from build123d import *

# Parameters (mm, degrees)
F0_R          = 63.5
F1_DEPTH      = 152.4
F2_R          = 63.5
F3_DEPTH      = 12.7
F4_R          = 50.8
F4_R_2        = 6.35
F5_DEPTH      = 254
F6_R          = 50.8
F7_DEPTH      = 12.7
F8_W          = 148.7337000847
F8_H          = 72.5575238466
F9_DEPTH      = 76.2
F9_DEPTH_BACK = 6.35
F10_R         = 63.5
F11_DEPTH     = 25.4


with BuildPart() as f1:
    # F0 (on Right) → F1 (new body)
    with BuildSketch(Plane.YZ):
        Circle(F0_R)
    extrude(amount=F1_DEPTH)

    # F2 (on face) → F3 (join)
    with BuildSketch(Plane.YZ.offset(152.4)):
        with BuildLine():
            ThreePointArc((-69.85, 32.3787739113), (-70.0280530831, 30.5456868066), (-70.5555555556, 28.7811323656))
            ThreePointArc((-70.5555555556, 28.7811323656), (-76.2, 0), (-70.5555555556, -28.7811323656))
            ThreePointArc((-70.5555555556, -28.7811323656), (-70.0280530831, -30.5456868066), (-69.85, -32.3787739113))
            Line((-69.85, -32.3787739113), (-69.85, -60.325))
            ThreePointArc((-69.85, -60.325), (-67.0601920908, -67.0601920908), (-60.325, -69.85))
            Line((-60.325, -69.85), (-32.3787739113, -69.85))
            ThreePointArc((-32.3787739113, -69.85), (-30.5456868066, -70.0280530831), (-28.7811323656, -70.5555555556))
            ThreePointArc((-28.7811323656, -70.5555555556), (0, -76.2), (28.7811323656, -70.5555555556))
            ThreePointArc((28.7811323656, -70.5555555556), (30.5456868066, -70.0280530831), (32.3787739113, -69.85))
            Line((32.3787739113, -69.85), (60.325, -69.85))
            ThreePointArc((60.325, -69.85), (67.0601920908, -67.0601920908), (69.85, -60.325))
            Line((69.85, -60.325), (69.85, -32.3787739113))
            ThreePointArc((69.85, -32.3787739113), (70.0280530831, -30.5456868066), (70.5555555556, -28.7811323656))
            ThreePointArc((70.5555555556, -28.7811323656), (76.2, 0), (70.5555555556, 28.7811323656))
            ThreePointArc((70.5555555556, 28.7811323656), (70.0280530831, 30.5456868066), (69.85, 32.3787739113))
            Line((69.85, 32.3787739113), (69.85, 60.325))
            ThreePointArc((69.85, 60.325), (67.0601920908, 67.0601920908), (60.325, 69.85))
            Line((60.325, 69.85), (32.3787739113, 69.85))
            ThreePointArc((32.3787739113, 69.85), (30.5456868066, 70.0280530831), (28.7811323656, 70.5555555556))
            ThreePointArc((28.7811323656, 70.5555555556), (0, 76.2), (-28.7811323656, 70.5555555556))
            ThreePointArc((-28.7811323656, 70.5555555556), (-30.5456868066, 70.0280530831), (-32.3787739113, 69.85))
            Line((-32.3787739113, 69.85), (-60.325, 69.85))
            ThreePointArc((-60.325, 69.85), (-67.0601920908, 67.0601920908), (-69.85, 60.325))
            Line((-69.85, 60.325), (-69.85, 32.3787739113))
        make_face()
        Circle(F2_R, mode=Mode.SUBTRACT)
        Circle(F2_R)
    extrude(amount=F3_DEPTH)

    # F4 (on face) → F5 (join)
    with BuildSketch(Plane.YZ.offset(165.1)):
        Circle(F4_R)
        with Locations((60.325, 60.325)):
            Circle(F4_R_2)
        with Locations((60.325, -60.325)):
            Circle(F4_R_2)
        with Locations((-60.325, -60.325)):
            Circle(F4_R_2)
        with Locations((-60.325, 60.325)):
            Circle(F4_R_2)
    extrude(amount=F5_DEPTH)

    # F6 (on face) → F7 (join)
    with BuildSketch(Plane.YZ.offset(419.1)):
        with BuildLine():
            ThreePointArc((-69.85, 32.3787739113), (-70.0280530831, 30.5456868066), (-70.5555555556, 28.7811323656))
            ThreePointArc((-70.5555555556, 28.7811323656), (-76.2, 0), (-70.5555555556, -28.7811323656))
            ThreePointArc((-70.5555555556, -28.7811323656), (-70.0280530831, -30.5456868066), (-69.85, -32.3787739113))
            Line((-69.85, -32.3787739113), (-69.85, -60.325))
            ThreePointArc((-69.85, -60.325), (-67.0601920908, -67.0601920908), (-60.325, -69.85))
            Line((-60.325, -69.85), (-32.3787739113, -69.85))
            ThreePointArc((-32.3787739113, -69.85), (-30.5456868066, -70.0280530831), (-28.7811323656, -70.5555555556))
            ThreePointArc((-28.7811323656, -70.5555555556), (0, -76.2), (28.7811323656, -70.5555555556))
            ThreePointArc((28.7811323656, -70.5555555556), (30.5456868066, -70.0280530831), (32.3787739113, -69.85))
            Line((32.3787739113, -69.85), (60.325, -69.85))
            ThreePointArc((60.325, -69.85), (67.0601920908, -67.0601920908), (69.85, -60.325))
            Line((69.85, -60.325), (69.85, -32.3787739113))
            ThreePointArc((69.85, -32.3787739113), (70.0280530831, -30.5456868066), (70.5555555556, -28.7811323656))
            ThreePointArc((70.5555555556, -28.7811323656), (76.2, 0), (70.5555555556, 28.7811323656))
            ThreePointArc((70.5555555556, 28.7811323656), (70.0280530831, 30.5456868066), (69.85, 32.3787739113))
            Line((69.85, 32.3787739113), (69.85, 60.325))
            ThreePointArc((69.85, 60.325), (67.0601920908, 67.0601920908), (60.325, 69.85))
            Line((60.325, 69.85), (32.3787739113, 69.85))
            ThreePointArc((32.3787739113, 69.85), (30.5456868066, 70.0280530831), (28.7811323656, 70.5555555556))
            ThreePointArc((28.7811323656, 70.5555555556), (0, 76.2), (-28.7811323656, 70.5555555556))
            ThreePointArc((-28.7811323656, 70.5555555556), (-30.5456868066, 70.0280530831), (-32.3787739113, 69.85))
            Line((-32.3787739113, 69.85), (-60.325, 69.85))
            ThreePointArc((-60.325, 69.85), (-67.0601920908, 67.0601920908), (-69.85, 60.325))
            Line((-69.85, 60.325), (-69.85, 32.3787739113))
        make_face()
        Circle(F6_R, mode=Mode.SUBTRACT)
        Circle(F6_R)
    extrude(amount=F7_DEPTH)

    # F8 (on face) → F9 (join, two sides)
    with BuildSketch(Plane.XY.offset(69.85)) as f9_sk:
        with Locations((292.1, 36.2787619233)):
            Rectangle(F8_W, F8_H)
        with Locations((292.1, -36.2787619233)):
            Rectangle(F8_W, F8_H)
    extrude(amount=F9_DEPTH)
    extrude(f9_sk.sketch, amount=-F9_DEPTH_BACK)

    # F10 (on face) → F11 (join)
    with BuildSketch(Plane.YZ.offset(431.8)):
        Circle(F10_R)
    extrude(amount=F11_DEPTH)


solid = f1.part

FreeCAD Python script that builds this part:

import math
import FreeCAD as App
import Part
import Sketcher
from FreeCAD import Vector
Q = App.Units.Quantity

doc = App.newDocument("Part")
body = doc.addObject("PartDesign::Body", "Body")

sketch1 = body.newObject("Sketcher::SketchObject", "Sketch")
sketch1.AttachmentSupport = (doc.getObject("YZ_Plane"), [""])
sketch1.MapMode = "FlatFace"
sketch1.addGeometry(Part.Circle(Vector(0, 0, 0), Vector(0, 0, 1), 64), False)
sketch1.addConstraint([
    Sketcher.Constraint("Coincident", 0, 3, -1, 1),
    Sketcher.Constraint("Diameter", 0, Q("5 in")),
])
pad1 = body.newObject("PartDesign::Pad", "Pad")
pad1.Profile = sketch1
pad1.Length = Q("6 in")

sketch2 = body.newObject("Sketcher::SketchObject", "Sketch001")
sketch2.AttachmentSupport = (doc.getObject("YZ_Plane"), [""])
sketch2.MapMode = "FlatFace"
sketch2.AttachmentOffset = App.Placement(Vector(0, 0, 6 * 25.4), App.Rotation())
sketch2.addGeometry([
    Part.ArcOfCircle(Part.Circle(Vector(-79.4, 32.4, 0), Vector(0, 0, 1), 9.5), math.radians(-22), math.radians(0)),
    Part.ArcOfCircle(Part.Circle(Vector(0, 0, 0), Vector(0, 0, 1), 76.2), math.radians(158), math.radians(202)),
    Part.ArcOfCircle(Part.Circle(Vector(-79.4, -32.4, 0), Vector(0, 0, 1), 9.5), math.radians(0), math.radians(22)),
    Part.LineSegment(Vector(-69.8, -32.4, 0), Vector(-69.8, -60.3, 0)),
    Part.ArcOfCircle(Part.Circle(Vector(-60.3, -60.3, 0), Vector(0, 0, 1), 9.5), math.radians(180), math.radians(270)),
    Part.LineSegment(Vector(-60.3, -69.8, 0), Vector(-32.4, -69.8, 0)),
    Part.ArcOfCircle(Part.Circle(Vector(-32.4, -79.4, 0), Vector(0, 0, 1), 9.5), math.radians(68), math.radians(90)),
    Part.ArcOfCircle(Part.Circle(Vector(0, 0, 0), Vector(0, 0, 1), 76.2), math.radians(-112), math.radians(-68)),
    Part.ArcOfCircle(Part.Circle(Vector(32.4, -79.4, 0), Vector(0, 0, 1), 9.5), math.radians(90), math.radians(112)),
    Part.LineSegment(Vector(32.4, -69.8, 0), Vector(60.3, -69.8, 0)),
    Part.ArcOfCircle(Part.Circle(Vector(60.3, -60.3, 0), Vector(0, 0, 1), 9.5), math.radians(-90), math.radians(0)),
    Part.LineSegment(Vector(69.8, -60.3, 0), Vector(69.8, -32.4, 0)),
    Part.ArcOfCircle(Part.Circle(Vector(79.4, -32.4, 0), Vector(0, 0, 1), 9.5), math.radians(158), math.radians(180)),
    Part.ArcOfCircle(Part.Circle(Vector(0, 0, 0), Vector(0, 0, 1), 76.2), math.radians(-22), math.radians(22)),
    Part.ArcOfCircle(Part.Circle(Vector(79.4, 32.4, 0), Vector(0, 0, 1), 9.5), math.radians(180), math.radians(202)),
    Part.LineSegment(Vector(69.8, 32.4, 0), Vector(69.8, 60.3, 0)),
    Part.ArcOfCircle(Part.Circle(Vector(60.3, 60.3, 0), Vector(0, 0, 1), 9.5), math.radians(0), math.radians(90)),
    Part.LineSegment(Vector(60.3, 69.8, 0), Vector(32.4, 69.8, 0)),
    Part.ArcOfCircle(Part.Circle(Vector(32.4, 79.4, 0), Vector(0, 0, 1), 9.5), math.radians(-112), math.radians(-90)),
    Part.ArcOfCircle(Part.Circle(Vector(0, 0, 0), Vector(0, 0, 1), 76.2), math.radians(68), math.radians(112)),
    Part.ArcOfCircle(Part.Circle(Vector(-32.4, 79.4, 0), Vector(0, 0, 1), 9.5), math.radians(-90), math.radians(-68)),
    Part.LineSegment(Vector(-32.4, 69.8, 0), Vector(-60.3, 69.8, 0)),
    Part.ArcOfCircle(Part.Circle(Vector(-60.3, 60.3, 0), Vector(0, 0, 1), 9.5), math.radians(90), math.radians(180)),
    Part.LineSegment(Vector(-69.8, 60.3, 0), Vector(-69.8, 32.4, 0)),
], False)
sketch2.addConstraint([
    Sketcher.Constraint("Tangent", 0, 1, 1, 1),
    Sketcher.Constraint("Tangent", 1, 2, 2, 2),
    Sketcher.Constraint("Tangent", 2, 1, 3, 1),
    Sketcher.Constraint("Tangent", 3, 2, 4, 1),
    Sketcher.Constraint("Tangent", 4, 2, 5, 1),
    Sketcher.Constraint("Tangent", 5, 2, 6, 2),
    Sketcher.Constraint("Tangent", 6, 1, 7, 1),
    Sketcher.Constraint("Tangent", 7, 2, 8, 2),
    Sketcher.Constraint("Tangent", 8, 1, 9, 1),
    Sketcher.Constraint("Tangent", 9, 2, 10, 1),
    Sketcher.Constraint("Tangent", 10, 2, 11, 1),
    Sketcher.Constraint("Tangent", 11, 2, 12, 2),
    Sketcher.Constraint("Tangent", 12, 1, 13, 1),
    Sketcher.Constraint("Tangent", 13, 2, 14, 2),
    Sketcher.Constraint("Tangent", 14, 1, 15, 1),
    Sketcher.Constraint("Tangent", 15, 2, 16, 1),
    Sketcher.Constraint("Tangent", 16, 2, 17, 1),
    Sketcher.Constraint("Tangent", 17, 2, 18, 2),
    Sketcher.Constraint("Tangent", 18, 1, 19, 1),
    Sketcher.Constraint("Tangent", 19, 2, 20, 2),
    Sketcher.Constraint("Tangent", 20, 1, 21, 1),
    Sketcher.Constraint("Tangent", 21, 2, 22, 1),
    Sketcher.Constraint("Tangent", 22, 2, 23, 1),
    Sketcher.Constraint("Tangent", 23, 2, 0, 2),
    Sketcher.Constraint("Vertical", 3),
    Sketcher.Constraint("Horizontal", 5),
    Sketcher.Constraint("Horizontal", 9),
    Sketcher.Constraint("Vertical", 11),
    Sketcher.Constraint("Vertical", 15),
    Sketcher.Constraint("Horizontal", 17),
    Sketcher.Constraint("Horizontal", 21),
    Sketcher.Constraint("Vertical", 23),
    Sketcher.Constraint("Coincident", 1, 3, -1, 1),
    Sketcher.Constraint("Coincident", 7, 3, -1, 1),
    Sketcher.Constraint("Coincident", 13, 3, -1, 1),
    Sketcher.Constraint("Coincident", 19, 3, -1, 1),
    Sketcher.Constraint("Equal", 0, 2),
    Sketcher.Constraint("Equal", 2, 4),
    Sketcher.Constraint("Equal", 4, 6),
    Sketcher.Constraint("Equal", 1, 7),
    Sketcher.Constraint("Equal", 6, 8),
    Sketcher.Constraint("Equal", 8, 10),
    Sketcher.Constraint("Equal", 10, 12),
    Sketcher.Constraint("Equal", 7, 13),
    Sketcher.Constraint("Equal", 12, 14),
    Sketcher.Constraint("Equal", 14, 16),
    Sketcher.Constraint("Equal", 16, 18),
    Sketcher.Constraint("Equal", 13, 19),
    Sketcher.Constraint("Equal", 18, 20),
    Sketcher.Constraint("Equal", 20, 22),
    Sketcher.Constraint("Symmetric", 4, 3, 16, 3, -1, 1),
    Sketcher.Constraint("Symmetric", 10, 3, 22, 3, -1, 1),
    Sketcher.Constraint("Symmetric", 4, 3, 10, 3, -2),
    Sketcher.Constraint("Equal", 21, 3),
    Sketcher.Constraint("Radius", 1, Q("3 in")),
    Sketcher.Constraint("Radius", 0, Q("0.375 in")),
    Sketcher.Constraint("DistanceX", 2, 1, -1, 1, Q("2.75 in")),
])
pad2 = body.newObject("PartDesign::Pad", "Pad001")
pad2.Profile = sketch2
pad2.Length = Q("0.5 in")

sketch3 = body.newObject("Sketcher::SketchObject", "Sketch002")
sketch3.AttachmentSupport = (doc.getObject("YZ_Plane"), [""])
sketch3.MapMode = "FlatFace"
sketch3.AttachmentOffset = App.Placement(Vector(0, 0, 6.5 * 25.4), App.Rotation())
sketch3.addGeometry([
    Part.Circle(Vector(0, 0, 0), Vector(0, 0, 1), 51),
    Part.Circle(Vector(60, 60, 0), Vector(0, 0, 1), 6),
    Part.Circle(Vector(60, -60, 0), Vector(0, 0, 1), 6),
    Part.Circle(Vector(-60, -60, 0), Vector(0, 0, 1), 6),
    Part.Circle(Vector(-60, 60, 0), Vector(0, 0, 1), 6),
], False)
sketch3.addConstraint([
    Sketcher.Constraint("Coincident", 0, 3, -1, 1),
    Sketcher.Constraint("Equal", 1, 2),
    Sketcher.Constraint("Equal", 2, 3),
    Sketcher.Constraint("Equal", 3, 4),
    Sketcher.Constraint("Symmetric", 1, 3, 3, 3, -1, 1),
    Sketcher.Constraint("Symmetric", 2, 3, 4, 3, -1, 1),
    Sketcher.Constraint("Symmetric", 2, 3, 3, 3, -2),
    Sketcher.Constraint("Diameter", 0, Q("4 in")),
    Sketcher.Constraint("Diameter", 1, Q("0.5 in")),
    Sketcher.Constraint("DistanceY", 2, 3, 1, 3, Q("4.75 in")),
    Sketcher.Constraint("DistanceX", 3, 3, 2, 3, Q("4.75 in")),
])
pad3 = body.newObject("PartDesign::Pad", "Pad002")
pad3.Profile = sketch3
pad3.Length = Q("10 in")

sketch4 = body.newObject("Sketcher::SketchObject", "Sketch003")
sketch4.AttachmentSupport = (doc.getObject("YZ_Plane"), [""])
sketch4.MapMode = "FlatFace"
sketch4.AttachmentOffset = App.Placement(Vector(0, 0, 16.5 * 25.4), App.Rotation())
sketch4.addGeometry([
    Part.ArcOfCircle(Part.Circle(Vector(-79.4, 32.4, 0), Vector(0, 0, 1), 9.5), math.radians(-22), math.radians(0)),
    Part.ArcOfCircle(Part.Circle(Vector(0, 0, 0), Vector(0, 0, 1), 76.2), math.radians(158), math.radians(202)),
    Part.ArcOfCircle(Part.Circle(Vector(-79.4, -32.4, 0), Vector(0, 0, 1), 9.5), math.radians(0), math.radians(22)),
    Part.LineSegment(Vector(-69.8, -32.4, 0), Vector(-69.8, -60.3, 0)),
    Part.ArcOfCircle(Part.Circle(Vector(-60.3, -60.3, 0), Vector(0, 0, 1), 9.5), math.radians(180), math.radians(270)),
    Part.LineSegment(Vector(-60.3, -69.8, 0), Vector(-32.4, -69.8, 0)),
    Part.ArcOfCircle(Part.Circle(Vector(-32.4, -79.4, 0), Vector(0, 0, 1), 9.5), math.radians(68), math.radians(90)),
    Part.ArcOfCircle(Part.Circle(Vector(0, 0, 0), Vector(0, 0, 1), 76.2), math.radians(-112), math.radians(-68)),
    Part.ArcOfCircle(Part.Circle(Vector(32.4, -79.4, 0), Vector(0, 0, 1), 9.5), math.radians(90), math.radians(112)),
    Part.LineSegment(Vector(32.4, -69.8, 0), Vector(60.3, -69.8, 0)),
    Part.ArcOfCircle(Part.Circle(Vector(60.3, -60.3, 0), Vector(0, 0, 1), 9.5), math.radians(-90), math.radians(0)),
    Part.LineSegment(Vector(69.8, -60.3, 0), Vector(69.8, -32.4, 0)),
    Part.ArcOfCircle(Part.Circle(Vector(79.4, -32.4, 0), Vector(0, 0, 1), 9.5), math.radians(158), math.radians(180)),
    Part.ArcOfCircle(Part.Circle(Vector(0, 0, 0), Vector(0, 0, 1), 76.2), math.radians(-22), math.radians(22)),
    Part.ArcOfCircle(Part.Circle(Vector(79.4, 32.4, 0), Vector(0, 0, 1), 9.5), math.radians(180), math.radians(202)),
    Part.LineSegment(Vector(69.8, 32.4, 0), Vector(69.8, 60.3, 0)),
    Part.ArcOfCircle(Part.Circle(Vector(60.3, 60.3, 0), Vector(0, 0, 1), 9.5), math.radians(0), math.radians(90)),
    Part.LineSegment(Vector(60.3, 69.8, 0), Vector(32.4, 69.8, 0)),
    Part.ArcOfCircle(Part.Circle(Vector(32.4, 79.4, 0), Vector(0, 0, 1), 9.5), math.radians(-112), math.radians(-90)),
    Part.ArcOfCircle(Part.Circle(Vector(0, 0, 0), Vector(0, 0, 1), 76.2), math.radians(68), math.radians(112)),
    Part.ArcOfCircle(Part.Circle(Vector(-32.4, 79.4, 0), Vector(0, 0, 1), 9.5), math.radians(-90), math.radians(-68)),
    Part.LineSegment(Vector(-32.4, 69.8, 0), Vector(-60.3, 69.8, 0)),
    Part.ArcOfCircle(Part.Circle(Vector(-60.3, 60.3, 0), Vector(0, 0, 1), 9.5), math.radians(90), math.radians(180)),
    Part.LineSegment(Vector(-69.8, 60.3, 0), Vector(-69.8, 32.4, 0)),
], False)
sketch4.addConstraint([
    Sketcher.Constraint("Tangent", 0, 1, 1, 1),
    Sketcher.Constraint("Tangent", 1, 2, 2, 2),
    Sketcher.Constraint("Tangent", 2, 1, 3, 1),
    Sketcher.Constraint("Tangent", 3, 2, 4, 1),
    Sketcher.Constraint("Tangent", 4, 2, 5, 1),
    Sketcher.Constraint("Tangent", 5, 2, 6, 2),
    Sketcher.Constraint("Tangent", 6, 1, 7, 1),
    Sketcher.Constraint("Tangent", 7, 2, 8, 2),
    Sketcher.Constraint("Tangent", 8, 1, 9, 1),
    Sketcher.Constraint("Tangent", 9, 2, 10, 1),
    Sketcher.Constraint("Tangent", 10, 2, 11, 1),
    Sketcher.Constraint("Tangent", 11, 2, 12, 2),
    Sketcher.Constraint("Tangent", 12, 1, 13, 1),
    Sketcher.Constraint("Tangent", 13, 2, 14, 2),
    Sketcher.Constraint("Tangent", 14, 1, 15, 1),
    Sketcher.Constraint("Tangent", 15, 2, 16, 1),
    Sketcher.Constraint("Tangent", 16, 2, 17, 1),
    Sketcher.Constraint("Tangent", 17, 2, 18, 2),
    Sketcher.Constraint("Tangent", 18, 1, 19, 1),
    Sketcher.Constraint("Tangent", 19, 2, 20, 2),
    Sketcher.Constraint("Tangent", 20, 1, 21, 1),
    Sketcher.Constraint("Tangent", 21, 2, 22, 1),
    Sketcher.Constraint("Tangent", 22, 2, 23, 1),
    Sketcher.Constraint("Tangent", 23, 2, 0, 2),
    Sketcher.Constraint("Vertical", 3),
    Sketcher.Constraint("Horizontal", 5),
    Sketcher.Constraint("Horizontal", 9),
    Sketcher.Constraint("Vertical", 11),
    Sketcher.Constraint("Vertical", 15),
    Sketcher.Constraint("Horizontal", 17),
    Sketcher.Constraint("Horizontal", 21),
    Sketcher.Constraint("Vertical", 23),
    Sketcher.Constraint("Coincident", 1, 3, -1, 1),
    Sketcher.Constraint("Coincident", 7, 3, -1, 1),
    Sketcher.Constraint("Coincident", 13, 3, -1, 1),
    Sketcher.Constraint("Coincident", 19, 3, -1, 1),
    Sketcher.Constraint("Equal", 0, 2),
    Sketcher.Constraint("Equal", 2, 4),
    Sketcher.Constraint("Equal", 4, 6),
    Sketcher.Constraint("Equal", 1, 7),
    Sketcher.Constraint("Equal", 6, 8),
    Sketcher.Constraint("Equal", 8, 10),
    Sketcher.Constraint("Equal", 10, 12),
    Sketcher.Constraint("Equal", 7, 13),
    Sketcher.Constraint("Equal", 12, 14),
    Sketcher.Constraint("Equal", 14, 16),
    Sketcher.Constraint("Equal", 16, 18),
    Sketcher.Constraint("Equal", 13, 19),
    Sketcher.Constraint("Equal", 18, 20),
    Sketcher.Constraint("Equal", 20, 22),
    Sketcher.Constraint("Symmetric", 4, 3, 16, 3, -1, 1),
    Sketcher.Constraint("Symmetric", 10, 3, 22, 3, -1, 1),
    Sketcher.Constraint("Symmetric", 4, 3, 10, 3, -2),
    Sketcher.Constraint("Equal", 21, 3),
    Sketcher.Constraint("Radius", 1, Q("3 in")),
    Sketcher.Constraint("Radius", 0, Q("0.375 in")),
    Sketcher.Constraint("DistanceX", 2, 1, -1, 1, Q("2.75 in")),
])
pad4 = body.newObject("PartDesign::Pad", "Pad003")
pad4.Profile = sketch4
pad4.Length = Q("0.5 in")

sketch5 = body.newObject("Sketcher::SketchObject", "Sketch004")
sketch5.AttachmentSupport = (doc.getObject("XY_Plane"), [""])
sketch5.MapMode = "FlatFace"
sketch5.AttachmentOffset = App.Placement(Vector(0, 0, 2.75 * 25.4), App.Rotation())
sketch5.addGeometry([
    Part.LineSegment(Vector(218, 73, 0), Vector(218, -73, 0)),
    Part.LineSegment(Vector(218, -73, 0), Vector(366, -73, 0)),
    Part.LineSegment(Vector(366, -73, 0), Vector(366, 73, 0)),
    Part.LineSegment(Vector(366, 73, 0), Vector(218, 73, 0)),
], False)
sketch5.addConstraint([
    Sketcher.Constraint("Coincident", 0, 2, 1, 1),
    Sketcher.Constraint("Coincident", 1, 2, 2, 1),
    Sketcher.Constraint("Coincident", 2, 2, 3, 1),
    Sketcher.Constraint("Coincident", 3, 2, 0, 1),
    Sketcher.Constraint("Vertical", 0),
    Sketcher.Constraint("Horizontal", 1),
    Sketcher.Constraint("Vertical", 2),
    Sketcher.Constraint("Horizontal", 3),
    Sketcher.Constraint("DistanceX", 1, 1, 1, 2, Q("148.7337 mm")),
    Sketcher.Constraint("DistanceY", 0, 2, 0, 1, Q("145.115048 mm")),
    Sketcher.Constraint("DistanceX", -1, 1, 0, 2, Q("217.73315 mm")),
    Sketcher.Constraint("DistanceY", 0, 2, -1, 1, Q("72.557524 mm")),
])
pad5 = body.newObject("PartDesign::Pad", "Pad004")
pad5.Profile = sketch5
pad5.Type = "TwoLengths"
pad5.Length = Q("3 in")
pad5.Length2 = Q("0.25 in")

sketch6 = body.newObject("Sketcher::SketchObject", "Sketch005")
sketch6.AttachmentSupport = (doc.getObject("YZ_Plane"), [""])
sketch6.MapMode = "FlatFace"
sketch6.AttachmentOffset = App.Placement(Vector(0, 0, 17 * 25.4), App.Rotation())
sketch6.addGeometry(Part.Circle(Vector(0, 0, 0), Vector(0, 0, 1), 64), False)
sketch6.addConstraint([
    Sketcher.Constraint("Coincident", 0, 3, -1, 1),
    Sketcher.Constraint("Diameter", 0, Q("5 in")),
])
pad6 = body.newObject("PartDesign::Pad", "Pad005")
pad6.Profile = sketch6
pad6.Length = Q("1 in")

doc.recompute()
